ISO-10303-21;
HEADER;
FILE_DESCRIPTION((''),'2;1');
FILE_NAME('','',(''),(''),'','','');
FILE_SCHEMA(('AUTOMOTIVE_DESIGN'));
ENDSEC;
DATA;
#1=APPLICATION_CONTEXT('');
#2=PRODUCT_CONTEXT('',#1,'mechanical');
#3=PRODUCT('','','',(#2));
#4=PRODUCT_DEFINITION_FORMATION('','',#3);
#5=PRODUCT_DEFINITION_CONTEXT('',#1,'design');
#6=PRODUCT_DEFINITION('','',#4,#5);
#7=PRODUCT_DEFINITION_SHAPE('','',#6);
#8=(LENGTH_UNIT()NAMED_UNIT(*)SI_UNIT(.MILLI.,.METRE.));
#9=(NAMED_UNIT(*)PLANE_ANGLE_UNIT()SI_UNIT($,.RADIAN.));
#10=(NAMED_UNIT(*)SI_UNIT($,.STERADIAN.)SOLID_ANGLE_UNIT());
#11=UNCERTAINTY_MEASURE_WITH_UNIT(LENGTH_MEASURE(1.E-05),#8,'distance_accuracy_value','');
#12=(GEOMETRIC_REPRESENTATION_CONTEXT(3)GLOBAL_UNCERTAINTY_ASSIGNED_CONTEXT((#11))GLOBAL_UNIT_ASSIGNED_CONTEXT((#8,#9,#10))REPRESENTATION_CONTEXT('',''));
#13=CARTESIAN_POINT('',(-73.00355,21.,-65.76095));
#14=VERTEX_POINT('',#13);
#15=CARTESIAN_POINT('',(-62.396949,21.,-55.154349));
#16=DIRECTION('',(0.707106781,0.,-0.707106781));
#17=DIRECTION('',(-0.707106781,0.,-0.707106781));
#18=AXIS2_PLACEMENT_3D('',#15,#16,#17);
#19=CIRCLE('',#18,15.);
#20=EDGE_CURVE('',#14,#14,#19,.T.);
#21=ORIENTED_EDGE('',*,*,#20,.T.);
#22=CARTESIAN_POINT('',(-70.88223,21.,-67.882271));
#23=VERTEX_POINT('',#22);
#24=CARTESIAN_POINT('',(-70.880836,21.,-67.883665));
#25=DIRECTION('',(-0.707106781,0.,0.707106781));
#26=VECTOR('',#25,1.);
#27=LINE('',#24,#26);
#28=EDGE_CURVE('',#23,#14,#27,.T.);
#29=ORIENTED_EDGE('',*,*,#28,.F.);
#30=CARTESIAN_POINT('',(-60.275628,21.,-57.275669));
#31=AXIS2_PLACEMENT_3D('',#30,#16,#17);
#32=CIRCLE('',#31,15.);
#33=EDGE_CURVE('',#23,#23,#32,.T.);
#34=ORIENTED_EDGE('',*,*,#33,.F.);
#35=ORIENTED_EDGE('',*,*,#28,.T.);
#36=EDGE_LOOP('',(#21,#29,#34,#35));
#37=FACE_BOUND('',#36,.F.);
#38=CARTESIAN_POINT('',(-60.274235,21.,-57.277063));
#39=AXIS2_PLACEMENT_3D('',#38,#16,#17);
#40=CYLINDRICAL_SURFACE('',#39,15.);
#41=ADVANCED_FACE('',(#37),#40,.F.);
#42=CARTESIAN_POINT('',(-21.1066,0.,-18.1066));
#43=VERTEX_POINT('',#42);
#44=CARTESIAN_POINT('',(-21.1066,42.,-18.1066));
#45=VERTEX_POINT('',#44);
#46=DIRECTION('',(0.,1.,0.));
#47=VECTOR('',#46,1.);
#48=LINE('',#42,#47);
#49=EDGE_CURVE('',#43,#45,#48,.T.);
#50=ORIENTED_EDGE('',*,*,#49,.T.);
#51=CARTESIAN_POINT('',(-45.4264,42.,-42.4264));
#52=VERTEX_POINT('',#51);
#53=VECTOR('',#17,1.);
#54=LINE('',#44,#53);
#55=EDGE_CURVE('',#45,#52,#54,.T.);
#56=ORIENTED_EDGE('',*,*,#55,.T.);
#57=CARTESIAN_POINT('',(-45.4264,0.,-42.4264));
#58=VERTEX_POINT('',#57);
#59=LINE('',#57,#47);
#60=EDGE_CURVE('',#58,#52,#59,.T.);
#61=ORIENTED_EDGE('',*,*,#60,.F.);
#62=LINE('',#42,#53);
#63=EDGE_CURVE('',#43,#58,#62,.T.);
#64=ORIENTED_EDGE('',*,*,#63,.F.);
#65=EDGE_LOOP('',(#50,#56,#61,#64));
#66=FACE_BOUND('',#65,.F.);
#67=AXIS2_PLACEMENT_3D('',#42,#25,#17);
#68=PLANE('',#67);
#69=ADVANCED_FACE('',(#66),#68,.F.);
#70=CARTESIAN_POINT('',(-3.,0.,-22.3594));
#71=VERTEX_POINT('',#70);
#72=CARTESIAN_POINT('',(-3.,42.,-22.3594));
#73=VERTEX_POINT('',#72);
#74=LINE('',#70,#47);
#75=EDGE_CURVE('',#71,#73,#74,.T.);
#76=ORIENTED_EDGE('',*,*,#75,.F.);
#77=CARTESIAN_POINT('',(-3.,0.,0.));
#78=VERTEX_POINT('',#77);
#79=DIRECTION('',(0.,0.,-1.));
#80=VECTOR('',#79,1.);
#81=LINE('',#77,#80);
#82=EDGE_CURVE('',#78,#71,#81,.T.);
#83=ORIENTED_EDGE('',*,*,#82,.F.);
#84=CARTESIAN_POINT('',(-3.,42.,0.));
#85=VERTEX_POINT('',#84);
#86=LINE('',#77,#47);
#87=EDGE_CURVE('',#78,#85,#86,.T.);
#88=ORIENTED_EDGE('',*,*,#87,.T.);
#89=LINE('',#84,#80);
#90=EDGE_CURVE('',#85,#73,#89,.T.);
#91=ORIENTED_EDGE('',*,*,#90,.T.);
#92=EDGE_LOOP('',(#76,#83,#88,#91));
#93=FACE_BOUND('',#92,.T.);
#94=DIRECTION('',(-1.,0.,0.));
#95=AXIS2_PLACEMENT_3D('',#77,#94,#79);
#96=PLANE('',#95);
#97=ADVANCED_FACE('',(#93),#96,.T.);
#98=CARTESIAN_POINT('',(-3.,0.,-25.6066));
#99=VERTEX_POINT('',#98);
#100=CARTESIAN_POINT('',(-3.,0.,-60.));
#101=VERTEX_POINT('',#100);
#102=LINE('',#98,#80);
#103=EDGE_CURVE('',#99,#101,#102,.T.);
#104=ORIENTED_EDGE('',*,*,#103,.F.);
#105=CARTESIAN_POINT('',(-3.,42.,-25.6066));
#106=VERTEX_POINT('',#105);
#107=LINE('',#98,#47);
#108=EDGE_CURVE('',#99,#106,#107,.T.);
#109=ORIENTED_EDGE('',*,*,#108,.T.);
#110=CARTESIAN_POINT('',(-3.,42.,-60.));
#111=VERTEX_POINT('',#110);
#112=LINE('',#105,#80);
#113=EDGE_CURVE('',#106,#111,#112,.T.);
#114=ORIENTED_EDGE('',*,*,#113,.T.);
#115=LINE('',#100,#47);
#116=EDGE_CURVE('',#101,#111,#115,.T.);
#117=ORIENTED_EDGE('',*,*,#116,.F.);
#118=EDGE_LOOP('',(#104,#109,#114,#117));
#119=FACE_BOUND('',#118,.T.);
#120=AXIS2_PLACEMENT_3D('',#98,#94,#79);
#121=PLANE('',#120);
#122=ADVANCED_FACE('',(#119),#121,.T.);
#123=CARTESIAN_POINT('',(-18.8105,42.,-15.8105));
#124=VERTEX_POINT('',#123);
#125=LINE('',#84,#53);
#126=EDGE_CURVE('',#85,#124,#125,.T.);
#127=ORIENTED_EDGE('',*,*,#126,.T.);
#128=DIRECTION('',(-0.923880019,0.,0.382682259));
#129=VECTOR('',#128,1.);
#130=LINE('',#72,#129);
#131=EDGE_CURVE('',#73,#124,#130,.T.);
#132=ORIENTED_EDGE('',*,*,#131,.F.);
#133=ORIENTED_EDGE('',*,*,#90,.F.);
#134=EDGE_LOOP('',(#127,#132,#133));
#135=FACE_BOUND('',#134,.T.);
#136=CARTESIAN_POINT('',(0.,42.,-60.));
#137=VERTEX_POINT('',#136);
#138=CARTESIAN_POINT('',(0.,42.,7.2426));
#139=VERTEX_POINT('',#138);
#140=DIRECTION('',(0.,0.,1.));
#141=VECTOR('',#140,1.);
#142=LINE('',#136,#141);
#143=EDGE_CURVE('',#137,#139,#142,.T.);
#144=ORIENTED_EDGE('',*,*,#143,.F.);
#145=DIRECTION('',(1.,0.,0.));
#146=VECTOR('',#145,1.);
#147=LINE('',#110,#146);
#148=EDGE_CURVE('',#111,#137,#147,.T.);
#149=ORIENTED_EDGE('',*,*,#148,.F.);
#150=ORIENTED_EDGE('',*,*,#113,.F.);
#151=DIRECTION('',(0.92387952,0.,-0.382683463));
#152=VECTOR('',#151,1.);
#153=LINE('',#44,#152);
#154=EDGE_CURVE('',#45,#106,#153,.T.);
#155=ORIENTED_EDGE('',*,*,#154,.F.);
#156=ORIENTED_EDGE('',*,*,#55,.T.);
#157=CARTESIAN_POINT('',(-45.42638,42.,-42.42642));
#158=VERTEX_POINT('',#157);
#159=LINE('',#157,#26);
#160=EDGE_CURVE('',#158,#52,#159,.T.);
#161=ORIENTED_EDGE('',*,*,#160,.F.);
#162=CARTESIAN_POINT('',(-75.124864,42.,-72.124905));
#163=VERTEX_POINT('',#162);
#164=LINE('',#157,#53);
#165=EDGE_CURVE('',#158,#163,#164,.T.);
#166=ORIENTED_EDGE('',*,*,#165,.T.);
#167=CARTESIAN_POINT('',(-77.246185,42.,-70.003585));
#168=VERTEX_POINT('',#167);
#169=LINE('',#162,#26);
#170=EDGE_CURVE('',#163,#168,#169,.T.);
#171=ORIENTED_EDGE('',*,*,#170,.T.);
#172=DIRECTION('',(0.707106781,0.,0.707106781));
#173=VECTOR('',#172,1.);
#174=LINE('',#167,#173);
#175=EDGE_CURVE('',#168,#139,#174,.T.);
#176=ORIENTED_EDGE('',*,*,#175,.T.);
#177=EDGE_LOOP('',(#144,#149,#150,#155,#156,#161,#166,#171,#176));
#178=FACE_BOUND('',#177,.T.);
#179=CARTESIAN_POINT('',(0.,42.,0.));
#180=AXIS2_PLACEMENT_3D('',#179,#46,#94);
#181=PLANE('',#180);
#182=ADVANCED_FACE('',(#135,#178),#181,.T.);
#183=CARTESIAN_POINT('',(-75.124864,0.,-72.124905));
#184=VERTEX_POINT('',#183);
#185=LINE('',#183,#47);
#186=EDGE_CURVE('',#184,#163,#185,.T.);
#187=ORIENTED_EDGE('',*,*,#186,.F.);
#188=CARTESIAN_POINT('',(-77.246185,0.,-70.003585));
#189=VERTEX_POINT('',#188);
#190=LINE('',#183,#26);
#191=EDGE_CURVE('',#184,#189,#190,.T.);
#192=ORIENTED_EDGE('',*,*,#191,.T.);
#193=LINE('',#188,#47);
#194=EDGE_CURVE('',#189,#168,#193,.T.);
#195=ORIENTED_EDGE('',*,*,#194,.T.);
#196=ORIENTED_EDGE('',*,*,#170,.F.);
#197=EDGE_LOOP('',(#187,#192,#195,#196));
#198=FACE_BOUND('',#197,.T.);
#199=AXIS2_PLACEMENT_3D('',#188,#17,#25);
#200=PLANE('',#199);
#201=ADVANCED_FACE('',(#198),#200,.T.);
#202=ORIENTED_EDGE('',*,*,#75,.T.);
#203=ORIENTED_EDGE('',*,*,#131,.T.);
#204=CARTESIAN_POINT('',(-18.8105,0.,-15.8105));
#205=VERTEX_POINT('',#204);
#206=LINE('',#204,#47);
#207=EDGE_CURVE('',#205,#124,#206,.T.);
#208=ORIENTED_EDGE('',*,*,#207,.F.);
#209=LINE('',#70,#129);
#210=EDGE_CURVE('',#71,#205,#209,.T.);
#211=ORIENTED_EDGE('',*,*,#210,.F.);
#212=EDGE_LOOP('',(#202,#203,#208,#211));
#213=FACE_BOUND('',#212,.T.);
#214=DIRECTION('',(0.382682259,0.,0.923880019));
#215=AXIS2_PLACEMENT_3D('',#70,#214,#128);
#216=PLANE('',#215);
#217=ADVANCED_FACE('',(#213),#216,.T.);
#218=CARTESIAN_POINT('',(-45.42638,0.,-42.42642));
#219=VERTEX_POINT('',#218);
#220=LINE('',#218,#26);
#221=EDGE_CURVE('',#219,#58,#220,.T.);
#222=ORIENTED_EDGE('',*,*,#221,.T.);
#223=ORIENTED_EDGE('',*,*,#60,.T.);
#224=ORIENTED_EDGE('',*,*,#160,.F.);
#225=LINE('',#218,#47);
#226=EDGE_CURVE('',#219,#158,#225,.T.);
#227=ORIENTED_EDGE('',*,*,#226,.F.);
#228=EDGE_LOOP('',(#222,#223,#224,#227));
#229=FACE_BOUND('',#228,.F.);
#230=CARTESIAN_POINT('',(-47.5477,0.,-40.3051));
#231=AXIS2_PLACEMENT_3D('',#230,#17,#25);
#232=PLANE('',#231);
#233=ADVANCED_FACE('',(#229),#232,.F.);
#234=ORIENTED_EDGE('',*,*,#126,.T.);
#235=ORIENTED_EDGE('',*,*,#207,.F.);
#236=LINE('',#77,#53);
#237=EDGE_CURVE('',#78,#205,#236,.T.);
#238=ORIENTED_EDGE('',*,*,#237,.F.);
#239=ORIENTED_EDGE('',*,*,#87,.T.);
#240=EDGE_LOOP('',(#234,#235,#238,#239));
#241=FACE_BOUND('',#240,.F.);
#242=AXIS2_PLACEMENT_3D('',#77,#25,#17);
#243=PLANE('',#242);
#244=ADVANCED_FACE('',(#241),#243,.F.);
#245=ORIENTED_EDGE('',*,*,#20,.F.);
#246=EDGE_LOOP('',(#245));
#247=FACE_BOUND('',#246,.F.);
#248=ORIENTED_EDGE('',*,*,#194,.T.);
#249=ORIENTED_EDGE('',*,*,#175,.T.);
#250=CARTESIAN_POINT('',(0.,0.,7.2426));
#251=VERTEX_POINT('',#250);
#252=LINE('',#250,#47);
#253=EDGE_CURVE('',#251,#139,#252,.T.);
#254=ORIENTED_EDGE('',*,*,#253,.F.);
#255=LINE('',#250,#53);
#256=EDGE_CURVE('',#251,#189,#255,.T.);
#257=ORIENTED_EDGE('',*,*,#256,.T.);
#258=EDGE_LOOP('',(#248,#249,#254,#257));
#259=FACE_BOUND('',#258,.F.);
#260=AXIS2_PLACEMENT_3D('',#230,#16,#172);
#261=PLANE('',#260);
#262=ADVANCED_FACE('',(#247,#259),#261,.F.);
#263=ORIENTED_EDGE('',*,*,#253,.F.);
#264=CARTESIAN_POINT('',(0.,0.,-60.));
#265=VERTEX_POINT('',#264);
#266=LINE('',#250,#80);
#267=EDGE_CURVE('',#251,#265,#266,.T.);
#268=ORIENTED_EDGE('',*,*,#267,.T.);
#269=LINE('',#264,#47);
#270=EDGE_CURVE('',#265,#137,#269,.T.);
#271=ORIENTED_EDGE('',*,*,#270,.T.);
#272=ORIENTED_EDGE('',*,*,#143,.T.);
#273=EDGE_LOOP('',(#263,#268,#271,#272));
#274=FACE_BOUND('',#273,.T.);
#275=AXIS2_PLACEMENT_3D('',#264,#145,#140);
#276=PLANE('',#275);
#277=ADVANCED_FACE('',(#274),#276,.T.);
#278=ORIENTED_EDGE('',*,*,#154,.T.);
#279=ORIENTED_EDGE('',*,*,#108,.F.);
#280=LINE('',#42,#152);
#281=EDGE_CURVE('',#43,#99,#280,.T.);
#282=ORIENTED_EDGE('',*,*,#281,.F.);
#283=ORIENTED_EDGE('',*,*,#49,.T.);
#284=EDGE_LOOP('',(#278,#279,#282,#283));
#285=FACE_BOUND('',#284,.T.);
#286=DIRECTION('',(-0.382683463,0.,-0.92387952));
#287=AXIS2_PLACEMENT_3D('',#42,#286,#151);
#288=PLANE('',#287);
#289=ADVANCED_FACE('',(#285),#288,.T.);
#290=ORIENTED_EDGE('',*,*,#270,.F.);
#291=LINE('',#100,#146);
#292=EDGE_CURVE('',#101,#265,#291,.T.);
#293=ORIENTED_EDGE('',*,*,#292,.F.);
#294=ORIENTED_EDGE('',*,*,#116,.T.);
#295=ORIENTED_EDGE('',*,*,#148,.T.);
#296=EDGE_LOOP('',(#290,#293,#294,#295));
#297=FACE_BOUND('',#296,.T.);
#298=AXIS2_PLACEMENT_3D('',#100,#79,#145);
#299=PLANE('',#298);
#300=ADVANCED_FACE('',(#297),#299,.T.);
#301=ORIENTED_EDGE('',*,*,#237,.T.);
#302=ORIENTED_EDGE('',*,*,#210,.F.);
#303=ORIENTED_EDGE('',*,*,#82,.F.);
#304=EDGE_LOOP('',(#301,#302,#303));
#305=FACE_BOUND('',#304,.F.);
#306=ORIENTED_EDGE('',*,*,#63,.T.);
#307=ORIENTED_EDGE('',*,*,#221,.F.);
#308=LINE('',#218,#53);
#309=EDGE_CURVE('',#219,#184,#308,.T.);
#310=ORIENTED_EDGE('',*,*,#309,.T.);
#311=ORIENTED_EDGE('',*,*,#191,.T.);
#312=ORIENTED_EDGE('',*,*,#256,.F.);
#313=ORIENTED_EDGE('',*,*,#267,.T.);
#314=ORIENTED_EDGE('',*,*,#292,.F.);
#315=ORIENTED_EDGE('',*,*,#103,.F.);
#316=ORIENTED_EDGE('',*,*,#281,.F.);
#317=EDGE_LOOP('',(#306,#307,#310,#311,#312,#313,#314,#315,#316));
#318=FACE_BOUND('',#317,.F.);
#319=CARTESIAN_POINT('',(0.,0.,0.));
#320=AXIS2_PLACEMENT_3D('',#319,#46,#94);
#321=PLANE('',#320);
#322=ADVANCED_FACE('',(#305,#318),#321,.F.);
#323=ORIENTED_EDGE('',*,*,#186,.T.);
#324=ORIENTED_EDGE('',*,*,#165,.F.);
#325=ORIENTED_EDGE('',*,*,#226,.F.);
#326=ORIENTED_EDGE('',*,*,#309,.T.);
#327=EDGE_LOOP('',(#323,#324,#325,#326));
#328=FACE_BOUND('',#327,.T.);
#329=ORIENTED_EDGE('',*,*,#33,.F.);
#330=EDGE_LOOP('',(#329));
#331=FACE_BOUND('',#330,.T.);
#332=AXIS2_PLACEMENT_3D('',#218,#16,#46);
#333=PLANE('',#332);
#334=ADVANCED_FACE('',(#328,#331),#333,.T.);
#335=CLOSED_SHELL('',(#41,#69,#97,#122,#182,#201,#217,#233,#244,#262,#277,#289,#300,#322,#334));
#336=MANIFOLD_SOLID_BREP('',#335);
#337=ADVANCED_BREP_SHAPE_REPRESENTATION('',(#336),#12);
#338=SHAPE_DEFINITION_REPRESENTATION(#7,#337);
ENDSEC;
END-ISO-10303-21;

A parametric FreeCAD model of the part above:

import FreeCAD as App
import Part
import Sketcher
Q = App.Units.Quantity


def add_polygon(sketch, points):
    """Adds a closed chain of lines whose ends are joined by coincident constraints."""
    first, n = sketch.GeometryCount, len(points)
    for a, b in zip(points, points[1:] + points[:1]):
        sketch.addGeometry(Part.LineSegment(App.Vector(*a, 0), App.Vector(*b, 0)), False)
    for i in range(n):
        sketch.addConstraint(Sketcher.Constraint("Coincident", first + i, 2, first + (i + 1) % n, 1))

doc = App.newDocument("Part")
body = doc.addObject("PartDesign::Body", "Body")

sketch1 = body.newObject("Sketcher::SketchObject", "Sketch")
sketch1.AttachmentSupport = (doc.getObject("XZ_Plane"), [""])
sketch1.MapMode = "FlatFace"
add_polygon(sketch1, [(0, -60), (-3, -60), (-3, -25.6), (-21.1, -18.1), (-45.4, -42.4), (-47.5, -40.3), (0, 7.2)])
add_polygon(sketch1, [(-18.8, -15.8), (-3, -22.4), (-3, 0)])
sketch1.addConstraint([
    Sketcher.Constraint("Horizontal", 0),
    Sketcher.Constraint("Vertical", 1),
    Sketcher.Constraint("Vertical", 6),
    Sketcher.Constraint("Vertical", 8),
    Sketcher.Constraint("PointOnObject", 5, 2, -2),
    Sketcher.Constraint("PointOnObject", 8, 2, -1),
    Sketcher.Constraint("Perpendicular", 3, 4),
    Sketcher.Constraint("Perpendicular", 4, 5),
    Sketcher.Constraint("Parallel", 2, 7),
    Sketcher.Constraint("Parallel", 5, 9),
    Sketcher.Constraint("Vertical", 1, 2, 7, 2),
    Sketcher.Constraint("DistanceX", 0, 2, 0, 1, 3.0),
    Sketcher.Constraint("Distance", 4, 3.0),
    Sketcher.Constraint("DistanceY", 0, 2, -1, 1, 60.0),
    Sketcher.Constraint("Angle", 3, Q("-135 deg")),
    Sketcher.Constraint("Angle", 2, Q("157.5 deg")),
    Sketcher.Constraint("DistanceY", 1, 2, 2, 2, 7.5),
    Sketcher.Constraint("DistanceY", 1, 1, 1, 2, 34.3934),
    Sketcher.Constraint("DistanceY", 8, 1, 8, 2, 22.3594),
    Sketcher.Constraint("DistanceY", 4, 2, -1, 1, 40.305),
])
pad1 = body.newObject("PartDesign::Pad", "Pad")
pad1.Profile = sketch1
pad1.Length = 42
pad1.Reversed = True

sketch2 = body.newObject("Sketcher::SketchObject", "Sketch001")
sketch2.Placement = App.Placement(App.Vector(-47.5477, 0, -40.3051), App.Rotation(App.Vector(-0.707106781, 0, 0.707106781), App.Vector(0, 0.999999999, 0), App.Vector(-0.707106781, 0, -0.707106781), "ZXY"))
add_polygon(sketch2, [(-3, 42), (-3, 0), (0, 0), (0, 42)])
sketch2.addConstraint([
    Sketcher.Constraint("Vertical", 0),
    Sketcher.Constraint("Horizontal", 1),
    Sketcher.Constraint("Vertical", 2),
    Sketcher.Constraint("Horizontal", 3),
    Sketcher.Constraint("Coincident", 1, 2, -1, 1),
    Sketcher.Constraint("DistanceX", 1, 1, 1, 2, 3.0),
    Sketcher.Constraint("DistanceY", 0, 2, 0, 1, 42.0),
])
pad2 = body.newObject("PartDesign::Pad", "Pad001")
pad2.Profile = sketch2
pad2.Length = 42

sketch3 = body.newObject("Sketcher::SketchObject", "Sketch002")
sketch3.Placement = App.Placement(App.Vector(-21.1066, 0, -18.1066), App.Rotation(App.Vector(-0.707106781, 0, -0.707106781), App.Vector(0, 0.999999999, 0), App.Vector(0.707106781, 0, -0.707106781), "ZXY"))
sketch3.addGeometry(Part.Circle(App.Vector(55, 21, 0), App.Vector(0, 0, 1), 15), False)
sketch3.addConstraint([
    Sketcher.Constraint("Diameter", 0, 30.0),
    Sketcher.Constraint("DistanceY", -1, 1, 0, 3, 21.0),
    Sketcher.Constraint("DistanceX", -1, 1, 0, 3, 55.3934),
])
pocket1 = body.newObject("PartDesign::Pocket", "Pocket")
pocket1.Profile = sketch3
pocket1.Length = 42

doc.recompute()
